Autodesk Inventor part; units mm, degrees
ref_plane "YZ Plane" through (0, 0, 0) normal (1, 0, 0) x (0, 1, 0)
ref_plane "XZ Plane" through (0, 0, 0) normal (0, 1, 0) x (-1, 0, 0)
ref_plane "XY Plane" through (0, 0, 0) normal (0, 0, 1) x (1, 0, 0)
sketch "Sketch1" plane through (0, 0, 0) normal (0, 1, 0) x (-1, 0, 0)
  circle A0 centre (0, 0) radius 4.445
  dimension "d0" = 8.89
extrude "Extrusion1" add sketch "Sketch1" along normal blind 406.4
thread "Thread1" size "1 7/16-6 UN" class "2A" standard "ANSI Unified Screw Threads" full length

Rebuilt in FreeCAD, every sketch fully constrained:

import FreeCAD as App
import Part
import Sketcher
from FreeCAD import Vector
Q = App.Units.Quantity

doc = App.newDocument("Part")
body = doc.addObject("PartDesign::Body", "Body")

# Sketch on XZ plane
sketch1 = doc.addObject("Sketcher::SketchObject", "Sketch")
body.addObject(sketch1)
sketch1.AttachmentSupport = (doc.XZ_Plane, [""])
sketch1.MapMode = "FlatFace"
sketch1.addGeometry(Part.Circle(Vector(0, 0, 0), Vector(0, 0, 1), 4.445), False)
sketch1.addConstraint(Sketcher.Constraint("Coincident", 0, 3, -1, 1))
sketch1.addConstraint(Sketcher.Constraint("Diameter", 0, Q("0.35 in")))
pad1 = doc.addObject("PartDesign::Pad", "Pad")
body.addObject(pad1)
pad1.Profile = sketch1
pad1.Length = Q("16 in")
pad1.Reversed = True

doc.recompute()
